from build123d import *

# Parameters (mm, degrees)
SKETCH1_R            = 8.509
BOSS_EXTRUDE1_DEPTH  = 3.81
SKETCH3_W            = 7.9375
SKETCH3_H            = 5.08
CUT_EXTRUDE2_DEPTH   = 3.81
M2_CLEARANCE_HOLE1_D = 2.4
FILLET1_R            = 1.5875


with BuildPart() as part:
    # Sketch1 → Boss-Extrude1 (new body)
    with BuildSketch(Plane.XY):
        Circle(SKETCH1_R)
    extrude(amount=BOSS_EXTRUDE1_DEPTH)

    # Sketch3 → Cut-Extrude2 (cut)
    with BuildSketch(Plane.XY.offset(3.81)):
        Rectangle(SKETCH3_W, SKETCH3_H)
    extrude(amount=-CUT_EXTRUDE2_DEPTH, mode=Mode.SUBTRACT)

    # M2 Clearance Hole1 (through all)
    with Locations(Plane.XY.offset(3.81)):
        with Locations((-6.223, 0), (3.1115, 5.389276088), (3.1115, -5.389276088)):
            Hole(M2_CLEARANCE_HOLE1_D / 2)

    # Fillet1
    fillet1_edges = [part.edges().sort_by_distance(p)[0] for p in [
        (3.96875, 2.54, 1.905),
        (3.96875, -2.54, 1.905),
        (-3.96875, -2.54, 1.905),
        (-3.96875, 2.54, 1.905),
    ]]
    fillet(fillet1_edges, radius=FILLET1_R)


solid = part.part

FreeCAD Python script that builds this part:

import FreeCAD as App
import Part
import Sketcher
Q = App.Units.Quantity


def edges_at(feature, points):
    """Names of the edges that pass closest to the given points."""
    edges = feature.Shape.Edges
    near = lambda p: min(range(len(edges)), key=lambda i: edges[i].distToShape(Part.Vertex(*p))[0])
    return sorted({f"Edge{near(p) + 1}" for p in points})

doc = App.newDocument("Part")
body = doc.addObject("PartDesign::Body", "Body")

sketch1 = doc.addObject("Sketcher::SketchObject", "Sketch")
body.addObject(sketch1)
sketch1.AttachmentSupport = (doc.XY_Plane, [""])
sketch1.MapMode = "FlatFace"
sketch1.addGeometry(Part.Circle(App.Vector(0, 0, 0), App.Vector(0, 0, 1), 9), False)
sketch1.addConstraint(Sketcher.Constraint("Coincident", 0, 3, -1, 1))
sketch1.addConstraint(Sketcher.Constraint("Diameter", 0, Q("0.67 in")))
pad1 = doc.addObject("PartDesign::Pad", "Pad")
body.addObject(pad1)
pad1.Profile = sketch1
pad1.Length = Q("0.15 in")

sketch2 = doc.addObject("Sketcher::SketchObject", "Sketch001")
body.addObject(sketch2)
sketch2.AttachmentSupport = (doc.XY_Plane, [""])
sketch2.MapMode = "FlatFace"
sketch2.AttachmentOffset = App.Placement(App.Vector(0, 0, 0.15 * 25.4), App.Rotation())
sketch2.addGeometry(Part.LineSegment(App.Vector(-4, 3, 0), App.Vector(-4, -3, 0)), False)
sketch2.addGeometry(Part.LineSegment(App.Vector(-4, -3, 0), App.Vector(4, -3, 0)), False)
sketch2.addGeometry(Part.LineSegment(App.Vector(4, -3, 0), App.Vector(4, 3, 0)), False)
sketch2.addGeometry(Part.LineSegment(App.Vector(4, 3, 0), App.Vector(-4, 3, 0)), False)
sketch2.addConstraint(Sketcher.Constraint("Coincident", 0, 2, 1, 1))
sketch2.addConstraint(Sketcher.Constraint("Coincident", 1, 2, 2, 1))
sketch2.addConstraint(Sketcher.Constraint("Coincident", 2, 2, 3, 1))
sketch2.addConstraint(Sketcher.Constraint("Coincident", 3, 2, 0, 1))
sketch2.addConstraint(Sketcher.Constraint("Vertical", 0))
sketch2.addConstraint(Sketcher.Constraint("Horizontal", 1))
sketch2.addConstraint(Sketcher.Constraint("Vertical", 2))
sketch2.addConstraint(Sketcher.Constraint("Horizontal", 3))
sketch2.addConstraint(Sketcher.Constraint("Symmetric", 0, 2, 2, 2, -1, 1))
sketch2.addConstraint(Sketcher.Constraint("DistanceY", 0, 2, 0, 1, Q("0.2 in")))
sketch2.addConstraint(Sketcher.Constraint("DistanceX", 1, 1, 1, 2, Q("0.3125 in")))
pocket1 = doc.addObject("PartDesign::Pocket", "Pocket")
body.addObject(pocket1)
pocket1.Profile = sketch2
pocket1.Length = Q("0.15 in")

sketch3 = doc.addObject("Sketcher::SketchObject", "Sketch002")
body.addObject(sketch3)
sketch3.AttachmentSupport = (doc.XY_Plane, [""])
sketch3.MapMode = "FlatFace"
sketch3.AttachmentOffset = App.Placement(App.Vector(0, 0, 0.15 * 25.4), App.Rotation())
sketch3.addGeometry(Part.Circle(App.Vector(-6.2, 0, 0), App.Vector(0, 0, 1), 1.2), False)
sketch3.addGeometry(Part.Circle(App.Vector(3.1, 5.4, 0), App.Vector(0, 0, 1), 1.2), False)
sketch3.addGeometry(Part.Circle(App.Vector(3.1, -5.4, 0), App.Vector(0, 0, 1), 1.2), False)
sketch3.addConstraint(Sketcher.Constraint("Equal", 0, 1))
sketch3.addConstraint(Sketcher.Constraint("Equal", 1, 2))
sketch3.addConstraint(Sketcher.Constraint("Symmetric", 1, 3, 2, 3, -1))
sketch3.addConstraint(Sketcher.Constraint("PointOnObject", 0, 3, -1))
sketch3.addConstraint(Sketcher.Constraint("Diameter", 0, Q("2.4 mm")))
sketch3.addConstraint(Sketcher.Constraint("DistanceX", 0, 3, -1, 1, Q("0.245 in")))
sketch3.addConstraint(Sketcher.Constraint("DistanceX", -1, 1, 1, 3, Q("0.1225 in")))
sketch3.addConstraint(Sketcher.Constraint("DistanceY", -1, 1, 1, 3, Q("5.389276 mm")))
doc.recompute()
hole = doc.addObject("PartDesign::Hole", "Hole")
body.addObject(hole)
hole.Profile = sketch3
hole.ThreadType = "None"
hole.Diameter = 2.4
hole.DepthType = "ThroughAll"
doc.recompute()

fillet = doc.addObject("PartDesign::Fillet", "Fillet")
body.addObject(fillet)
fillet.Base = (hole, edges_at(hole, [
    (3.969, 2.54, 1.905),
    (3.969, -2.54, 1.905),
    (-3.969, -2.54, 1.905),
    (-3.969, 2.54, 1.905),
]))
fillet.Radius = Q("0.0625 in")

doc.recompute()
